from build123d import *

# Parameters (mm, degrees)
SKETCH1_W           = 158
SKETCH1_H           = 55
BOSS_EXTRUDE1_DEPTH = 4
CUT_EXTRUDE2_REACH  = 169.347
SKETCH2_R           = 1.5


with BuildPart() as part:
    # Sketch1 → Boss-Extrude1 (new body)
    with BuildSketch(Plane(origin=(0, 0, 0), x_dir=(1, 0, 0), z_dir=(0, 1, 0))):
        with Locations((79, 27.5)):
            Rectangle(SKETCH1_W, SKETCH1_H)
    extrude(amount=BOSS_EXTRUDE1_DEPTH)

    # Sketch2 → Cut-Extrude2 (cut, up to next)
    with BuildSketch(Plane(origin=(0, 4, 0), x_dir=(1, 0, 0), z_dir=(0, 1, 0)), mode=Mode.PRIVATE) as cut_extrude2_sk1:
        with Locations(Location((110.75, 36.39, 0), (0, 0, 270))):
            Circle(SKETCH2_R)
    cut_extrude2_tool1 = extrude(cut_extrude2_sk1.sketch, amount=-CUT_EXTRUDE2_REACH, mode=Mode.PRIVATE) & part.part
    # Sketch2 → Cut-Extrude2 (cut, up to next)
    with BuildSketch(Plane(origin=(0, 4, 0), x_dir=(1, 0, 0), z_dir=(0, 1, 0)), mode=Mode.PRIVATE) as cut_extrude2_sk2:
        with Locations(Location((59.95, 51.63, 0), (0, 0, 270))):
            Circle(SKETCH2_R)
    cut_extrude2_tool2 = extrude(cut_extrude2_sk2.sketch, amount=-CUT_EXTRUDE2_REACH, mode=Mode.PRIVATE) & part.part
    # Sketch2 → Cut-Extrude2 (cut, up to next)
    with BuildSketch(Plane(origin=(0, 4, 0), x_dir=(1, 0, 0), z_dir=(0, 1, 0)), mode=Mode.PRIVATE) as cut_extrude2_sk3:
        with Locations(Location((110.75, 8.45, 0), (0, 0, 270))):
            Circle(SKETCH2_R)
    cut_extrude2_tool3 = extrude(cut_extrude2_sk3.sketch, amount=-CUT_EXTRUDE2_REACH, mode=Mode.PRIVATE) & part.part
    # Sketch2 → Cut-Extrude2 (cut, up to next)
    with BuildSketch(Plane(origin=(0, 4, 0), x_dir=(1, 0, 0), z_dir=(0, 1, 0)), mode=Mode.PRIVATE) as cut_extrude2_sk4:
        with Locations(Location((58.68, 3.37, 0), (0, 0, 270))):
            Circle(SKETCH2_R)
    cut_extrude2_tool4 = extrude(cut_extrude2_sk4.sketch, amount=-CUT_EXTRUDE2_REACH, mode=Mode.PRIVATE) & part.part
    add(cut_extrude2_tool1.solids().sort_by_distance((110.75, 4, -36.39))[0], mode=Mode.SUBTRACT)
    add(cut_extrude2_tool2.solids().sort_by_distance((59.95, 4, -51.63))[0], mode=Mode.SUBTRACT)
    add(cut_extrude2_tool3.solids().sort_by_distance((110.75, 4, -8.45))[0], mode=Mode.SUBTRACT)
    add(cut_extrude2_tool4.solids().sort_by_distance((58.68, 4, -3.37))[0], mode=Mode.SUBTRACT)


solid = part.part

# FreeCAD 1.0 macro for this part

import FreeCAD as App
import Part
import Sketcher
from FreeCAD import Vector

doc = App.newDocument("Part")
params = doc.addObject("Spreadsheet::Sheet", "Params")
for row, (alias, value) in enumerate([
    ("sketch1_width", "158 mm"),
    ("sketch1_height", "55 mm"),
    ("pad1_length", "4 mm"),
    ("sketch2_diameter", "3 mm"),
    ("sketch3_diameter", "3 mm"),
    ("sketch4_diameter", "3 mm"),
    ("sketch5_diameter", "3 mm"),
], start=1):
    params.set(f"A{row}", alias)
    params.set(f"B{row}", "=" + value)
    params.setAlias(f"B{row}", alias)

body = doc.addObject("PartDesign::Body", "Body")

sketch1 = doc.addObject("Sketcher::SketchObject", "Sketch")
body.addObject(sketch1)
sketch1.AttachmentSupport = (doc.XZ_Plane, [""])
sketch1.MapMode = "FlatFace"
sketch1.addGeometry([
    Part.LineSegment(Vector(0, -55, 0), Vector(0, 0, 0)),
    Part.LineSegment(Vector(0, 0, 0), Vector(158, 0, 0)),
    Part.LineSegment(Vector(158, 0, 0), Vector(158, -55, 0)),
    Part.LineSegment(Vector(158, -55, 0), Vector(0, -55, 0)),
], False)
sketch1.addConstraint([
    Sketcher.Constraint("Coincident", 0, 2, 1, 1),
    Sketcher.Constraint("Coincident", 1, 2, 2, 1),
    Sketcher.Constraint("Coincident", 2, 2, 3, 1),
    Sketcher.Constraint("Coincident", 3, 2, 0, 1),
    Sketcher.Constraint("Vertical", 0),
    Sketcher.Constraint("Horizontal", 1),
    Sketcher.Constraint("Vertical", 2),
    Sketcher.Constraint("Horizontal", 3),
    Sketcher.Constraint("Coincident", 0, 2, -1, 1),
    Sketcher.Constraint("DistanceX", 1, 1, 1, 2, 158.0),
    Sketcher.Constraint("DistanceY", 0, 1, 0, 2, 55.0),
])
sketch1.setExpression("Constraints[9]", "Params.sketch1_width")
sketch1.setExpression("Constraints[10]", "Params.sketch1_height")
pad1 = doc.addObject("PartDesign::Pad", "Pad")
body.addObject(pad1)
pad1.Profile = sketch1
pad1.setExpression("Length", "Params.pad1_length")
pad1.Reversed = True

sketch2 = doc.addObject("Sketcher::SketchObject", "Sketch001")
body.addObject(sketch2)
sketch2.AttachmentSupport = (doc.XZ_Plane, [""])
sketch2.MapMode = "FlatFace"
sketch2.AttachmentOffset = App.Placement(Vector(0, 0, -4), App.Rotation())
sketch2.addGeometry(Part.Circle(Vector(110.8, -36.4, 0), Vector(0, 0, 1), 1.5), False)
sketch2.addConstraint([
    Sketcher.Constraint("Diameter", 0, 3.0),
    Sketcher.Constraint("DistanceX", -1, 1, 0, 3, 110.75),
    Sketcher.Constraint("DistanceY", 0, 3, -1, 1, 36.39),
])
sketch2.setExpression("Constraints[0]", "Params.sketch2_diameter")
pocket1 = doc.addObject("PartDesign::Pocket", "Pocket")
body.addObject(pocket1)
pocket1.Profile = sketch2
pocket1.Type = "UpToFirst"
pocket1.Reversed = True

sketch3 = doc.addObject("Sketcher::SketchObject", "Sketch002")
body.addObject(sketch3)
sketch3.AttachmentSupport = (doc.XZ_Plane, [""])
sketch3.MapMode = "FlatFace"
sketch3.AttachmentOffset = App.Placement(Vector(0, 0, -4), App.Rotation())
sketch3.addGeometry(Part.Circle(Vector(60, -51.6, 0), Vector(0, 0, 1), 1.5), False)
sketch3.addConstraint([
    Sketcher.Constraint("Diameter", 0, 3.0),
    Sketcher.Constraint("DistanceX", -1, 1, 0, 3, 59.95),
    Sketcher.Constraint("DistanceY", 0, 3, -1, 1, 51.63),
])
sketch3.setExpression("Constraints[0]", "Params.sketch3_diameter")
pocket2 = doc.addObject("PartDesign::Pocket", "Pocket001")
body.addObject(pocket2)
pocket2.Profile = sketch3
pocket2.Type = "UpToFirst"
pocket2.Reversed = True

sketch4 = doc.addObject("Sketcher::SketchObject", "Sketch003")
body.addObject(sketch4)
sketch4.AttachmentSupport = (doc.XZ_Plane, [""])
sketch4.MapMode = "FlatFace"
sketch4.AttachmentOffset = App.Placement(Vector(0, 0, -4), App.Rotation())
sketch4.addGeometry(Part.Circle(Vector(110.8, -8.4, 0), Vector(0, 0, 1), 1.5), False)
sketch4.addConstraint([
    Sketcher.Constraint("Diameter", 0, 3.0),
    Sketcher.Constraint("DistanceX", -1, 1, 0, 3, 110.75),
    Sketcher.Constraint("DistanceY", 0, 3, -1, 1, 8.45),
])
sketch4.setExpression("Constraints[0]", "Params.sketch4_diameter")
pocket3 = doc.addObject("PartDesign::Pocket", "Pocket002")
body.addObject(pocket3)
pocket3.Profile = sketch4
pocket3.Type = "UpToFirst"
pocket3.Reversed = True

sketch5 = doc.addObject("Sketcher::SketchObject", "Sketch004")
body.addObject(sketch5)
sketch5.AttachmentSupport = (doc.XZ_Plane, [""])
sketch5.MapMode = "FlatFace"
sketch5.AttachmentOffset = App.Placement(Vector(0, 0, -4), App.Rotation())
sketch5.addGeometry(Part.Circle(Vector(58.7, -3.4, 0), Vector(0, 0, 1), 1.5), False)
sketch5.addConstraint([
    Sketcher.Constraint("Diameter", 0, 3.0),
    Sketcher.Constraint("DistanceX", -1, 1, 0, 3, 58.68),
    Sketcher.Constraint("DistanceY", 0, 3, -1, 1, 3.37),
])
sketch5.setExpression("Constraints[0]", "Params.sketch5_diameter")
pocket4 = doc.addObject("PartDesign::Pocket", "Pocket003")
body.addObject(pocket4)
pocket4.Profile = sketch5
pocket4.Type = "UpToFirst"
pocket4.Reversed = True

doc.recompute()
